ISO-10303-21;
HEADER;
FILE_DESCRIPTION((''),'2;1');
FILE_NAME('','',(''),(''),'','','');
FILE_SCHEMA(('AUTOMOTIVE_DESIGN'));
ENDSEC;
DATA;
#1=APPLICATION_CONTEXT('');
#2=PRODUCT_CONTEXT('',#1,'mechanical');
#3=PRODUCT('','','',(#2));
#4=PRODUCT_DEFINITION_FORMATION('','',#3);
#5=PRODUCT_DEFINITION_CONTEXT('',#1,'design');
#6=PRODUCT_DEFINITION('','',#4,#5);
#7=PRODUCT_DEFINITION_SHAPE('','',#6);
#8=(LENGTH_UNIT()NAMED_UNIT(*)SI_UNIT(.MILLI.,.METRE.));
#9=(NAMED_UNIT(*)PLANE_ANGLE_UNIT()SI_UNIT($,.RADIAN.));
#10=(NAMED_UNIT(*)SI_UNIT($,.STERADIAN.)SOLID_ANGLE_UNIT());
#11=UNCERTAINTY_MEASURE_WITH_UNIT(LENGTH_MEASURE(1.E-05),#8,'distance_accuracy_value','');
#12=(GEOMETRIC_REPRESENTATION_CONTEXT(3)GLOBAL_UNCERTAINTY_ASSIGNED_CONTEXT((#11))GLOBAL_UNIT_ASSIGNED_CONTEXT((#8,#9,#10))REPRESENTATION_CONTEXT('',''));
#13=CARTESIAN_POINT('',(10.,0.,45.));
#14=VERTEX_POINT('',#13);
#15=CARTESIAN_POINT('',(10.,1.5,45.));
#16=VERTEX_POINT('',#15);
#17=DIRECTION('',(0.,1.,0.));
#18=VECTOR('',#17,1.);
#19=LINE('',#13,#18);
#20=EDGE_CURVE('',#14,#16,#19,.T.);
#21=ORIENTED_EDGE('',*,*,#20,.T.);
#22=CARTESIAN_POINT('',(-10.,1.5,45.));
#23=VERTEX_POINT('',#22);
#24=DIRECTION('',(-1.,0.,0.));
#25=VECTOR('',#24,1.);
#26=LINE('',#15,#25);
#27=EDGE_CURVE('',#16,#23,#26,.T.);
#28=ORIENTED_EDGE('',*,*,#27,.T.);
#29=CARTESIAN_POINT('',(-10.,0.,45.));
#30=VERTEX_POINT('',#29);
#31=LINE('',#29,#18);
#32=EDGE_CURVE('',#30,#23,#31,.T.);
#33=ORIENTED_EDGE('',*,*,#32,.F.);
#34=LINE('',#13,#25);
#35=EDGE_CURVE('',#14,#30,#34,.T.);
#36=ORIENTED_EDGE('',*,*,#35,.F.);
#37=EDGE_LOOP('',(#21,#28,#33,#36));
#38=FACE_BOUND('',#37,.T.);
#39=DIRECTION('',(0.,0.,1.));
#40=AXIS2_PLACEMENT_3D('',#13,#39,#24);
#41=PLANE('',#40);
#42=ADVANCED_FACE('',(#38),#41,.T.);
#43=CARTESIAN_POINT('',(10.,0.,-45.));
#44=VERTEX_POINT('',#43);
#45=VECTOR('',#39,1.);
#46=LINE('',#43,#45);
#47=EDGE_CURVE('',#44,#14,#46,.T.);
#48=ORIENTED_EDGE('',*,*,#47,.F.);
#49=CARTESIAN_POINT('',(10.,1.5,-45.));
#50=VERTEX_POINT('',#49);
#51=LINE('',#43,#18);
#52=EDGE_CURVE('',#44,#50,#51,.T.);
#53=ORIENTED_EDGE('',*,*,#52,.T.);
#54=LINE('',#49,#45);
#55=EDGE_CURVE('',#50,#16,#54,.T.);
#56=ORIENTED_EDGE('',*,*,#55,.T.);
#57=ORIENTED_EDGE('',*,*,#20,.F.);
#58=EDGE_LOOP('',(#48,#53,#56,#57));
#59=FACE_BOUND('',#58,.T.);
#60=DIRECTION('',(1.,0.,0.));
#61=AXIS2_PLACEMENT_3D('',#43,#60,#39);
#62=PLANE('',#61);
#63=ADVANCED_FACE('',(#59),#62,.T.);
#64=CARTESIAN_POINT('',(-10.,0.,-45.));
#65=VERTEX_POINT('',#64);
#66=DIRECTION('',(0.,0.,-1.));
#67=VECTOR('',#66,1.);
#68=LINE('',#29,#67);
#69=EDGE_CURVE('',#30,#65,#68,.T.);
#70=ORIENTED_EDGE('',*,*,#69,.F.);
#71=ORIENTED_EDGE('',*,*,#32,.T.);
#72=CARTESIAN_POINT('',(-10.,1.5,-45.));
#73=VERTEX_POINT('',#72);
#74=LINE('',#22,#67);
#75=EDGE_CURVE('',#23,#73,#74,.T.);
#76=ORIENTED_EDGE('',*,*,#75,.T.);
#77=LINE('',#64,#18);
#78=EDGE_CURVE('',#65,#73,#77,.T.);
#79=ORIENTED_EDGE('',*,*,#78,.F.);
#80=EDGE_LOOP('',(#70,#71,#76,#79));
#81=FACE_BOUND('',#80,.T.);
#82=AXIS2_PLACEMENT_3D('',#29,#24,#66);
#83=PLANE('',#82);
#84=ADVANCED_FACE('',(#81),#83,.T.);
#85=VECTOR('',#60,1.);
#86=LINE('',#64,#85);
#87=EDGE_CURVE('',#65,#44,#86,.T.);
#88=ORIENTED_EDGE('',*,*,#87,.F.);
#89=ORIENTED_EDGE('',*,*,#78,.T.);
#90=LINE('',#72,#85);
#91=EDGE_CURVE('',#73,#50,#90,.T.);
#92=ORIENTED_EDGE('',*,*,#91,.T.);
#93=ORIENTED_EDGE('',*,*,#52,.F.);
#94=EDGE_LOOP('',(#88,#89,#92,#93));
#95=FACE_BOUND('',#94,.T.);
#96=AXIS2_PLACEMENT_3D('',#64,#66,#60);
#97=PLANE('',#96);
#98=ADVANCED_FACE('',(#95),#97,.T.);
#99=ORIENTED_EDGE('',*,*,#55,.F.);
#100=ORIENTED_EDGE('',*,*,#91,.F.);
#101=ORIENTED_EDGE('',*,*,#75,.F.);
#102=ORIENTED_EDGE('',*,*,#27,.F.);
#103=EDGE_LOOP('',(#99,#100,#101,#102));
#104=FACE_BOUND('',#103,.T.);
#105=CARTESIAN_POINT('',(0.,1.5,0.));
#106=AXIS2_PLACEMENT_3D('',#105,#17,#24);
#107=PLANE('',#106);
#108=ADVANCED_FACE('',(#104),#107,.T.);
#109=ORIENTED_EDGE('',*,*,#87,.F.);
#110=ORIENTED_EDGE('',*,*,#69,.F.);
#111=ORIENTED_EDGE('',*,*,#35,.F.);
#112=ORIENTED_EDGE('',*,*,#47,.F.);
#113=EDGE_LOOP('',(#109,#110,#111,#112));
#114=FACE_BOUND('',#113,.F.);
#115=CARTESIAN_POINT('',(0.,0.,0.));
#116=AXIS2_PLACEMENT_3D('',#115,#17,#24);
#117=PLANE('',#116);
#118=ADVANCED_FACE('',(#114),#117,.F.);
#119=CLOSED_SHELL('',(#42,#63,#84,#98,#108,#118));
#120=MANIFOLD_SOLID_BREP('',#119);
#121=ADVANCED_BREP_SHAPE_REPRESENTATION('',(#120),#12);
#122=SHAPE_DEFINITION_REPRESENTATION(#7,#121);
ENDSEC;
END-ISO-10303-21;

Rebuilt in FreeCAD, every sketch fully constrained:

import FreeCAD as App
import Part
import Sketcher
from FreeCAD import Vector

doc = App.newDocument("Part")
body = doc.addObject("PartDesign::Body", "Body")

# Sketch on XZ plane
sketch1 = body.newObject("Sketcher::SketchObject", "Sketch")
sketch1.AttachmentSupport = (doc.getObject("XZ_Plane"), [""])
sketch1.MapMode = "FlatFace"
sketch1.addGeometry([
    Part.LineSegment(Vector(10, -45, 0), Vector(-10, -45, 0)),
    Part.LineSegment(Vector(-10, -45, 0), Vector(-10, 45, 0)),
    Part.LineSegment(Vector(-10, 45, 0), Vector(10, 45, 0)),
    Part.LineSegment(Vector(10, 45, 0), Vector(10, -45, 0)),
], False)
sketch1.addConstraint([
    Sketcher.Constraint("Coincident", 0, 2, 1, 1),
    Sketcher.Constraint("Coincident", 1, 2, 2, 1),
    Sketcher.Constraint("Coincident", 2, 2, 3, 1),
    Sketcher.Constraint("Coincident", 3, 2, 0, 1),
    Sketcher.Constraint("Horizontal", 0),
    Sketcher.Constraint("Vertical", 1),
    Sketcher.Constraint("Horizontal", 2),
    Sketcher.Constraint("Vertical", 3),
    Sketcher.Constraint("Symmetric", 0, 2, 2, 2, -1, 1),
    Sketcher.Constraint("DistanceX", 0, 2, 0, 1, 20.0),
    Sketcher.Constraint("DistanceY", 1, 1, 1, 2, 90.0),
])
pad1 = body.newObject("PartDesign::Pad", "Pad")
pad1.Profile = sketch1
pad1.Length = 1.5
pad1.Reversed = True

doc.recompute()
